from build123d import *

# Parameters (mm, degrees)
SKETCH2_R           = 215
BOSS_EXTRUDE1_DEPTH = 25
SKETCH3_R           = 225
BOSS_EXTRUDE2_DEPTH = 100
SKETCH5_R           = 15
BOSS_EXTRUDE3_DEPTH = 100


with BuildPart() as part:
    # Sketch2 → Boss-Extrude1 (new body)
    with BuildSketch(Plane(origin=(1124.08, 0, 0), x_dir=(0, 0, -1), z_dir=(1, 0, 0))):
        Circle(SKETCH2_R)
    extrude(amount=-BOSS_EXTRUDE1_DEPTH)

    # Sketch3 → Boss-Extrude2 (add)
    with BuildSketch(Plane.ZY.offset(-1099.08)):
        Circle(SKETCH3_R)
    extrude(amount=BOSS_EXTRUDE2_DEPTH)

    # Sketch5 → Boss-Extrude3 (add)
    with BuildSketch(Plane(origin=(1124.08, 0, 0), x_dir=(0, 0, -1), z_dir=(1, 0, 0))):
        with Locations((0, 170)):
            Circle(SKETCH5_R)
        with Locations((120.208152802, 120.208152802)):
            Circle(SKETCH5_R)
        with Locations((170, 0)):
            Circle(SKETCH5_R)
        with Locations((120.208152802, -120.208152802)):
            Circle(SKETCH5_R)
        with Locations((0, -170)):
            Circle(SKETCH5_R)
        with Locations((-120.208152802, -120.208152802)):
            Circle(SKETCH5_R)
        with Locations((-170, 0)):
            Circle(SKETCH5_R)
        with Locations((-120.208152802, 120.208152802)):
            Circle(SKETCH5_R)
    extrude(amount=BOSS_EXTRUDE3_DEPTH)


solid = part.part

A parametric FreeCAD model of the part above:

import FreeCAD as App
import Part
import Sketcher
Q = App.Units.Quantity

doc = App.newDocument("Part")
body = doc.addObject("PartDesign::Body", "Body")

sketch1 = doc.addObject("Sketcher::SketchObject", "Sketch")
body.addObject(sketch1)
sketch1.AttachmentSupport = (doc.YZ_Plane, [""])
sketch1.MapMode = "FlatFace"
sketch1.AttachmentOffset = App.Placement(App.Vector(0, 0, 1124.08), App.Rotation())
sketch1.addGeometry(Part.Circle(App.Vector(0, 0, 0), App.Vector(0, 0, 1), 215), False)
sketch1.addConstraint([
    Sketcher.Constraint("Coincident", 0, 3, -1, 1),
    Sketcher.Constraint("Diameter", 0, Q("430 mm")),
])
pad1 = doc.addObject("PartDesign::Pad", "Pad")
body.addObject(pad1)
pad1.Profile = sketch1
pad1.Length = 25
pad1.Reversed = True

sketch2 = doc.addObject("Sketcher::SketchObject", "Sketch001")
body.addObject(sketch2)
sketch2.AttachmentSupport = (doc.YZ_Plane, [""])
sketch2.MapMode = "FlatFace"
sketch2.AttachmentOffset = App.Placement(App.Vector(0, 0, 1099.08), App.Rotation())
sketch2.addGeometry(Part.Circle(App.Vector(0, 0, 0), App.Vector(0, 0, 1), 225), False)
sketch2.addConstraint([
    Sketcher.Constraint("Coincident", 0, 3, -1, 1),
    Sketcher.Constraint("Diameter", 0, Q("450 mm")),
])
pad2 = doc.addObject("PartDesign::Pad", "Pad001")
body.addObject(pad2)
pad2.Profile = sketch2
pad2.Length = 100
pad2.Reversed = True

sketch3 = doc.addObject("Sketcher::SketchObject", "Sketch002")
body.addObject(sketch3)
sketch3.AttachmentSupport = (doc.YZ_Plane, [""])
sketch3.MapMode = "FlatFace"
sketch3.AttachmentOffset = App.Placement(App.Vector(0, 0, 1124.08), App.Rotation())
sketch3.addGeometry([
    Part.Circle(App.Vector(170, 0, 0), App.Vector(0, 0, 1), 15),
    Part.Circle(App.Vector(120, -120, 0), App.Vector(0, 0, 1), 15),
    Part.Circle(App.Vector(0, -170, 0), App.Vector(0, 0, 1), 15),
    Part.Circle(App.Vector(-120, -120, 0), App.Vector(0, 0, 1), 15),
    Part.Circle(App.Vector(-170, 0, 0), App.Vector(0, 0, 1), 15),
    Part.Circle(App.Vector(-120, 120, 0), App.Vector(0, 0, 1), 15),
    Part.Circle(App.Vector(0, 170, 0), App.Vector(0, 0, 1), 15),
    Part.Circle(App.Vector(120, 120, 0), App.Vector(0, 0, 1), 15),
], False)
sketch3.addConstraint([
    Sketcher.Constraint("Equal", 0, 1),
    Sketcher.Constraint("Equal", 1, 2),
    Sketcher.Constraint("Equal", 2, 3),
    Sketcher.Constraint("Equal", 3, 4),
    Sketcher.Constraint("Equal", 4, 5),
    Sketcher.Constraint("Equal", 5, 6),
    Sketcher.Constraint("Equal", 6, 7),
    Sketcher.Constraint("Symmetric", 0, 3, 4, 3, -1, 1),
    Sketcher.Constraint("Symmetric", 1, 3, 5, 3, -1, 1),
    Sketcher.Constraint("Symmetric", 2, 3, 6, 3, -1, 1),
    Sketcher.Constraint("Symmetric", 3, 3, 7, 3, -1, 1),
    Sketcher.Constraint("Symmetric", 1, 3, 3, 3, -2),
    Sketcher.Constraint("PointOnObject", 0, 3, -1),
    Sketcher.Constraint("PointOnObject", 2, 3, -2),
    Sketcher.Constraint("Diameter", 0, Q("30 mm")),
    Sketcher.Constraint("DistanceX", -1, 1, 0, 3, Q("170 mm")),
    Sketcher.Constraint("DistanceY", 2, 3, -1, 1, Q("170 mm")),
    Sketcher.Constraint("DistanceX", -1, 1, 1, 3, Q("120.208153 mm")),
    Sketcher.Constraint("DistanceY", 1, 3, -1, 1, Q("120.208153 mm")),
])
pad3 = doc.addObject("PartDesign::Pad", "Pad002")
body.addObject(pad3)
pad3.Profile = sketch3
pad3.Length = 100

doc.recompute()
